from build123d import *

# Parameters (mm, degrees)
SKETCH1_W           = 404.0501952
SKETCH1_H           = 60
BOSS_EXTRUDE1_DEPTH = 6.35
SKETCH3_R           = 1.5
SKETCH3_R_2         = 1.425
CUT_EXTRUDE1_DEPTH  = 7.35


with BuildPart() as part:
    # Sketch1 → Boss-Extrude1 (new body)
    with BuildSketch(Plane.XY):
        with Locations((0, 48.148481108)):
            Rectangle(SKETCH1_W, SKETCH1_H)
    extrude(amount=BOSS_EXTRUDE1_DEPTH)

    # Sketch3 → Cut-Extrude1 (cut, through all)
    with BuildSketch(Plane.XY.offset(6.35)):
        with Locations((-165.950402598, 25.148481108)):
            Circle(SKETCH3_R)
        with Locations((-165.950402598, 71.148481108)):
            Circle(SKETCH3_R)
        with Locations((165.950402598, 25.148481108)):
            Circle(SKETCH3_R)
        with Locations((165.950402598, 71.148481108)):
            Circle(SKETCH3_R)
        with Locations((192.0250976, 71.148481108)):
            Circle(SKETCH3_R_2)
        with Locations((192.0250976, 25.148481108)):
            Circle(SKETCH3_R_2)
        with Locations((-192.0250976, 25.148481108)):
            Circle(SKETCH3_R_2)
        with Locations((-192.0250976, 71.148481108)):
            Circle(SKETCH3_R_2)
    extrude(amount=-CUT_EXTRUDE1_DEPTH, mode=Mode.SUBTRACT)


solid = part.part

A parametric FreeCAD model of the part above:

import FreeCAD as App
import Part
import Sketcher
Q = App.Units.Quantity


def add_polygon(sketch, points):
    """Adds a closed chain of lines whose ends are joined by coincident constraints."""
    first, n = sketch.GeometryCount, len(points)
    for a, b in zip(points, points[1:] + points[:1]):
        sketch.addGeometry(Part.LineSegment(App.Vector(*a, 0), App.Vector(*b, 0)), False)
    for i in range(n):
        sketch.addConstraint(Sketcher.Constraint("Coincident", first + i, 2, first + (i + 1) % n, 1))

doc = App.newDocument("Part")
body = doc.addObject("PartDesign::Body", "Body")

# Sketch on XY plane
sketch1 = body.newObject("Sketcher::SketchObject", "Sketch")
sketch1.AttachmentSupport = (doc.getObject("XY_Plane"), [""])
sketch1.MapMode = "FlatFace"
add_polygon(sketch1, [(-202, 78), (-202, 18), (202, 18), (202, 78)])  # lines 0-3
sketch1.addConstraint([
    Sketcher.Constraint("Vertical", 0),
    Sketcher.Constraint("Horizontal", 1),
    Sketcher.Constraint("Vertical", 2),
    Sketcher.Constraint("Horizontal", 3),
    Sketcher.Constraint("DistanceY", 0, 2, 0, 1, Q("60 mm")),
    Sketcher.Constraint("DistanceX", 1, 1, 1, 2, Q("404.050195 mm")),
    Sketcher.Constraint("DistanceY", -1, 1, 0, 2, Q("18.148481 mm")),
    Sketcher.Constraint("DistanceX", 0, 2, -1, 1, Q("202.025098 mm")),
])
pad1 = body.newObject("PartDesign::Pad", "Pad")
pad1.Profile = sketch1
pad1.Length = 6.35

# Sketch on XY plane
sketch2 = body.newObject("Sketcher::SketchObject", "Sketch001")
sketch2.AttachmentSupport = (doc.getObject("XY_Plane"), [""])
sketch2.MapMode = "FlatFace"
sketch2.AttachmentOffset = App.Placement(App.Vector(0, 0, 6.35), App.Rotation())
sketch2.addGeometry([
    Part.Circle(App.Vector(-166, 25.1, 0), App.Vector(0, 0, 1), 1.5),  # 0
    Part.Circle(App.Vector(-166, 71.1, 0), App.Vector(0, 0, 1), 1.5),  # 1
    Part.Circle(App.Vector(166, 25.1, 0), App.Vector(0, 0, 1), 1.5),  # 2
    Part.Circle(App.Vector(166, 71.1, 0), App.Vector(0, 0, 1), 1.5),  # 3
    Part.Circle(App.Vector(192, 71.1, 0), App.Vector(0, 0, 1), 1.4),  # 4
    Part.Circle(App.Vector(192, 25.1, 0), App.Vector(0, 0, 1), 1.4),  # 5
    Part.Circle(App.Vector(-192, 25.1, 0), App.Vector(0, 0, 1), 1.4),  # 6
    Part.Circle(App.Vector(-192, 71.1, 0), App.Vector(0, 0, 1), 1.4),  # 7
], False)
sketch2.addConstraint([
    Sketcher.Constraint("Equal", 0, 1),
    Sketcher.Constraint("Equal", 1, 2),
    Sketcher.Constraint("Equal", 2, 3),
    Sketcher.Constraint("Equal", 4, 5),
    Sketcher.Constraint("Equal", 5, 6),
    Sketcher.Constraint("Equal", 6, 7),
    Sketcher.Constraint("Symmetric", 0, 3, 2, 3, -2),
    Sketcher.Constraint("Symmetric", 1, 3, 3, 3, -2),
    Sketcher.Constraint("Symmetric", 5, 3, 6, 3, -2),
    Sketcher.Constraint("Symmetric", 4, 3, 7, 3, -2),
    Sketcher.Constraint("Horizontal", 3, 3, 4, 3),
    Sketcher.Constraint("Horizontal", 2, 3, 5, 3),
    Sketcher.Constraint("Vertical", 0, 3, 1, 3),
    Sketcher.Constraint("Vertical", 4, 3, 5, 3),
    Sketcher.Constraint("Diameter", 0, Q("3 mm")),
    Sketcher.Constraint("Diameter", 4, Q("2.85 mm")),
    Sketcher.Constraint("DistanceY", 0, 3, 1, 3, Q("46 mm")),
    Sketcher.Constraint("DistanceX", 1, 3, 4, 3, Q("357.9755 mm")),
    Sketcher.Constraint("DistanceY", -1, 1, 0, 3, Q("25.148481 mm")),
    Sketcher.Constraint("DistanceX", 0, 3, -1, 1, Q("165.950403 mm")),
])
pocket1 = body.newObject("PartDesign::Pocket", "Pocket")
pocket1.Profile = sketch2
pocket1.Type = "ThroughAll"

doc.recompute()
